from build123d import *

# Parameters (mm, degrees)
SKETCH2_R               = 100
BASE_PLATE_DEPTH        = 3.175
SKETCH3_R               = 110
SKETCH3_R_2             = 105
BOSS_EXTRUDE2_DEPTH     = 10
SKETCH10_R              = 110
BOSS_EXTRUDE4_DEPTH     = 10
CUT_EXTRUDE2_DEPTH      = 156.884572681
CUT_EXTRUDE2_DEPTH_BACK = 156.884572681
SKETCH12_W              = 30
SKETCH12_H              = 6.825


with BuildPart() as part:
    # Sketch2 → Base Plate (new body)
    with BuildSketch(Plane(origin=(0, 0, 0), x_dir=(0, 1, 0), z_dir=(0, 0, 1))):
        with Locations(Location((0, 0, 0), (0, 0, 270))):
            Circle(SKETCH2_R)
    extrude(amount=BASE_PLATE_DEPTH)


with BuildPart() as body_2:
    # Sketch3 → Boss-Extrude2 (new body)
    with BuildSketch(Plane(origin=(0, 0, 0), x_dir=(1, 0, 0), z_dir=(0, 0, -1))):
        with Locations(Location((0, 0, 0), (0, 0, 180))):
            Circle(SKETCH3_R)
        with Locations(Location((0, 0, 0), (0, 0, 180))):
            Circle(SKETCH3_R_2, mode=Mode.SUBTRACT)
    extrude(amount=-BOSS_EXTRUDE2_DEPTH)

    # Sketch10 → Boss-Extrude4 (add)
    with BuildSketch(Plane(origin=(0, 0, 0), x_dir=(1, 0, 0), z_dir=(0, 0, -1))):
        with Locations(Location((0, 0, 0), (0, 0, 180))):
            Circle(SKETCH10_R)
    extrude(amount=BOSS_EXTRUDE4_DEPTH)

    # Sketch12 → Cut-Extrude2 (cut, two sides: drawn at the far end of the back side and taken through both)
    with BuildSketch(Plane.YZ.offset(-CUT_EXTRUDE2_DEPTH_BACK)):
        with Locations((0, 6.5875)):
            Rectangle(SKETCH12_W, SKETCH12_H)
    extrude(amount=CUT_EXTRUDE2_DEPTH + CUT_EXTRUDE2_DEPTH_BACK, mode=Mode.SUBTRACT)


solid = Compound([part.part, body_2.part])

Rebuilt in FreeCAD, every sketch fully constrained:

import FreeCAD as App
import Part
import Sketcher

doc = App.newDocument("Part")
body = doc.addObject("PartDesign::Body", "Body")

# Sketch on XY plane
sketch1 = body.newObject("Sketcher::SketchObject", "Sketch")
sketch1.AttachmentSupport = (doc.getObject("XY_Plane"), [""])
sketch1.MapMode = "FlatFace"
sketch1.addGeometry(Part.Circle(App.Vector(0, 0, 0), App.Vector(0, 0, 1), 100), False)
sketch1.addConstraint([
    Sketcher.Constraint("Coincident", 0, 3, -1, 1),
    Sketcher.Constraint("Diameter", 0, 200.0),
])
pad1 = body.newObject("PartDesign::Pad", "Pad")
pad1.Profile = sketch1
pad1.Length = 3.175
body2 = doc.addObject("PartDesign::Body", "Body001")

# Sketch on XY plane
sketch2 = body2.newObject("Sketcher::SketchObject", "Sketch001")
sketch2.AttachmentSupport = (doc.getObject("XY_Plane001"), [""])
sketch2.MapMode = "FlatFace"
sketch2.addGeometry([
    Part.Circle(App.Vector(0, 0, 0), App.Vector(0, 0, 1), 110),
    Part.Circle(App.Vector(0, 0, 0), App.Vector(0, 0, 1), 105),
], False)
sketch2.addConstraint([
    Sketcher.Constraint("Coincident", 0, 3, -1, 1),
    Sketcher.Constraint("Coincident", 1, 3, -1, 1),
    Sketcher.Constraint("Diameter", 0, 220.0),
    Sketcher.Constraint("Diameter", 1, 210.0),
])
pad2 = body2.newObject("PartDesign::Pad", "Pad001")
pad2.Profile = sketch2
pad2.Length = 10

# Sketch on XY plane
sketch3 = body2.newObject("Sketcher::SketchObject", "Sketch002")
sketch3.AttachmentSupport = (doc.getObject("XY_Plane001"), [""])
sketch3.MapMode = "FlatFace"
sketch3.addGeometry(Part.Circle(App.Vector(0, 0, 0), App.Vector(0, 0, 1), 110), False)
sketch3.addConstraint([
    Sketcher.Constraint("Coincident", 0, 3, -1, 1),
    Sketcher.Constraint("Diameter", 0, 220.0),
])
pad3 = body2.newObject("PartDesign::Pad", "Pad002")
pad3.Profile = sketch3
pad3.Length = 10
pad3.Reversed = True

# Sketch on YZ plane
sketch4 = body2.newObject("Sketcher::SketchObject", "Sketch003")
sketch4.AttachmentSupport = (doc.getObject("YZ_Plane001"), [""])
sketch4.MapMode = "FlatFace"
sketch4.addGeometry([
    Part.LineSegment(App.Vector(-15, 10, 0), App.Vector(-15, 3.175, 0)),
    Part.LineSegment(App.Vector(-15, 3.175, 0), App.Vector(15, 3.175, 0)),
    Part.LineSegment(App.Vector(15, 3.175, 0), App.Vector(15, 10, 0)),
    Part.LineSegment(App.Vector(15, 10, 0), App.Vector(-15, 10, 0)),
], False)
sketch4.addConstraint([
    Sketcher.Constraint("Coincident", 0, 2, 1, 1),
    Sketcher.Constraint("Coincident", 1, 2, 2, 1),
    Sketcher.Constraint("Coincident", 2, 2, 3, 1),
    Sketcher.Constraint("Coincident", 3, 2, 0, 1),
    Sketcher.Constraint("Vertical", 0),
    Sketcher.Constraint("Horizontal", 1),
    Sketcher.Constraint("Vertical", 2),
    Sketcher.Constraint("Horizontal", 3),
    Sketcher.Constraint("DistanceX", 1, 1, 1, 2, 30.0),
    Sketcher.Constraint("DistanceX", 0, 2, -1, 1, 15.0),
    Sketcher.Constraint("DistanceY", -1, 1, 2, 2, 10.0),
    Sketcher.Constraint("DistanceY", 0, 2, 0, 1, 6.825),
])
pocket1 = body2.newObject("PartDesign::Pocket", "Pocket")
pocket1.Profile = sketch4
pocket1.Type = "ThroughAll"
pocket1.Midplane = True

doc.recompute()
